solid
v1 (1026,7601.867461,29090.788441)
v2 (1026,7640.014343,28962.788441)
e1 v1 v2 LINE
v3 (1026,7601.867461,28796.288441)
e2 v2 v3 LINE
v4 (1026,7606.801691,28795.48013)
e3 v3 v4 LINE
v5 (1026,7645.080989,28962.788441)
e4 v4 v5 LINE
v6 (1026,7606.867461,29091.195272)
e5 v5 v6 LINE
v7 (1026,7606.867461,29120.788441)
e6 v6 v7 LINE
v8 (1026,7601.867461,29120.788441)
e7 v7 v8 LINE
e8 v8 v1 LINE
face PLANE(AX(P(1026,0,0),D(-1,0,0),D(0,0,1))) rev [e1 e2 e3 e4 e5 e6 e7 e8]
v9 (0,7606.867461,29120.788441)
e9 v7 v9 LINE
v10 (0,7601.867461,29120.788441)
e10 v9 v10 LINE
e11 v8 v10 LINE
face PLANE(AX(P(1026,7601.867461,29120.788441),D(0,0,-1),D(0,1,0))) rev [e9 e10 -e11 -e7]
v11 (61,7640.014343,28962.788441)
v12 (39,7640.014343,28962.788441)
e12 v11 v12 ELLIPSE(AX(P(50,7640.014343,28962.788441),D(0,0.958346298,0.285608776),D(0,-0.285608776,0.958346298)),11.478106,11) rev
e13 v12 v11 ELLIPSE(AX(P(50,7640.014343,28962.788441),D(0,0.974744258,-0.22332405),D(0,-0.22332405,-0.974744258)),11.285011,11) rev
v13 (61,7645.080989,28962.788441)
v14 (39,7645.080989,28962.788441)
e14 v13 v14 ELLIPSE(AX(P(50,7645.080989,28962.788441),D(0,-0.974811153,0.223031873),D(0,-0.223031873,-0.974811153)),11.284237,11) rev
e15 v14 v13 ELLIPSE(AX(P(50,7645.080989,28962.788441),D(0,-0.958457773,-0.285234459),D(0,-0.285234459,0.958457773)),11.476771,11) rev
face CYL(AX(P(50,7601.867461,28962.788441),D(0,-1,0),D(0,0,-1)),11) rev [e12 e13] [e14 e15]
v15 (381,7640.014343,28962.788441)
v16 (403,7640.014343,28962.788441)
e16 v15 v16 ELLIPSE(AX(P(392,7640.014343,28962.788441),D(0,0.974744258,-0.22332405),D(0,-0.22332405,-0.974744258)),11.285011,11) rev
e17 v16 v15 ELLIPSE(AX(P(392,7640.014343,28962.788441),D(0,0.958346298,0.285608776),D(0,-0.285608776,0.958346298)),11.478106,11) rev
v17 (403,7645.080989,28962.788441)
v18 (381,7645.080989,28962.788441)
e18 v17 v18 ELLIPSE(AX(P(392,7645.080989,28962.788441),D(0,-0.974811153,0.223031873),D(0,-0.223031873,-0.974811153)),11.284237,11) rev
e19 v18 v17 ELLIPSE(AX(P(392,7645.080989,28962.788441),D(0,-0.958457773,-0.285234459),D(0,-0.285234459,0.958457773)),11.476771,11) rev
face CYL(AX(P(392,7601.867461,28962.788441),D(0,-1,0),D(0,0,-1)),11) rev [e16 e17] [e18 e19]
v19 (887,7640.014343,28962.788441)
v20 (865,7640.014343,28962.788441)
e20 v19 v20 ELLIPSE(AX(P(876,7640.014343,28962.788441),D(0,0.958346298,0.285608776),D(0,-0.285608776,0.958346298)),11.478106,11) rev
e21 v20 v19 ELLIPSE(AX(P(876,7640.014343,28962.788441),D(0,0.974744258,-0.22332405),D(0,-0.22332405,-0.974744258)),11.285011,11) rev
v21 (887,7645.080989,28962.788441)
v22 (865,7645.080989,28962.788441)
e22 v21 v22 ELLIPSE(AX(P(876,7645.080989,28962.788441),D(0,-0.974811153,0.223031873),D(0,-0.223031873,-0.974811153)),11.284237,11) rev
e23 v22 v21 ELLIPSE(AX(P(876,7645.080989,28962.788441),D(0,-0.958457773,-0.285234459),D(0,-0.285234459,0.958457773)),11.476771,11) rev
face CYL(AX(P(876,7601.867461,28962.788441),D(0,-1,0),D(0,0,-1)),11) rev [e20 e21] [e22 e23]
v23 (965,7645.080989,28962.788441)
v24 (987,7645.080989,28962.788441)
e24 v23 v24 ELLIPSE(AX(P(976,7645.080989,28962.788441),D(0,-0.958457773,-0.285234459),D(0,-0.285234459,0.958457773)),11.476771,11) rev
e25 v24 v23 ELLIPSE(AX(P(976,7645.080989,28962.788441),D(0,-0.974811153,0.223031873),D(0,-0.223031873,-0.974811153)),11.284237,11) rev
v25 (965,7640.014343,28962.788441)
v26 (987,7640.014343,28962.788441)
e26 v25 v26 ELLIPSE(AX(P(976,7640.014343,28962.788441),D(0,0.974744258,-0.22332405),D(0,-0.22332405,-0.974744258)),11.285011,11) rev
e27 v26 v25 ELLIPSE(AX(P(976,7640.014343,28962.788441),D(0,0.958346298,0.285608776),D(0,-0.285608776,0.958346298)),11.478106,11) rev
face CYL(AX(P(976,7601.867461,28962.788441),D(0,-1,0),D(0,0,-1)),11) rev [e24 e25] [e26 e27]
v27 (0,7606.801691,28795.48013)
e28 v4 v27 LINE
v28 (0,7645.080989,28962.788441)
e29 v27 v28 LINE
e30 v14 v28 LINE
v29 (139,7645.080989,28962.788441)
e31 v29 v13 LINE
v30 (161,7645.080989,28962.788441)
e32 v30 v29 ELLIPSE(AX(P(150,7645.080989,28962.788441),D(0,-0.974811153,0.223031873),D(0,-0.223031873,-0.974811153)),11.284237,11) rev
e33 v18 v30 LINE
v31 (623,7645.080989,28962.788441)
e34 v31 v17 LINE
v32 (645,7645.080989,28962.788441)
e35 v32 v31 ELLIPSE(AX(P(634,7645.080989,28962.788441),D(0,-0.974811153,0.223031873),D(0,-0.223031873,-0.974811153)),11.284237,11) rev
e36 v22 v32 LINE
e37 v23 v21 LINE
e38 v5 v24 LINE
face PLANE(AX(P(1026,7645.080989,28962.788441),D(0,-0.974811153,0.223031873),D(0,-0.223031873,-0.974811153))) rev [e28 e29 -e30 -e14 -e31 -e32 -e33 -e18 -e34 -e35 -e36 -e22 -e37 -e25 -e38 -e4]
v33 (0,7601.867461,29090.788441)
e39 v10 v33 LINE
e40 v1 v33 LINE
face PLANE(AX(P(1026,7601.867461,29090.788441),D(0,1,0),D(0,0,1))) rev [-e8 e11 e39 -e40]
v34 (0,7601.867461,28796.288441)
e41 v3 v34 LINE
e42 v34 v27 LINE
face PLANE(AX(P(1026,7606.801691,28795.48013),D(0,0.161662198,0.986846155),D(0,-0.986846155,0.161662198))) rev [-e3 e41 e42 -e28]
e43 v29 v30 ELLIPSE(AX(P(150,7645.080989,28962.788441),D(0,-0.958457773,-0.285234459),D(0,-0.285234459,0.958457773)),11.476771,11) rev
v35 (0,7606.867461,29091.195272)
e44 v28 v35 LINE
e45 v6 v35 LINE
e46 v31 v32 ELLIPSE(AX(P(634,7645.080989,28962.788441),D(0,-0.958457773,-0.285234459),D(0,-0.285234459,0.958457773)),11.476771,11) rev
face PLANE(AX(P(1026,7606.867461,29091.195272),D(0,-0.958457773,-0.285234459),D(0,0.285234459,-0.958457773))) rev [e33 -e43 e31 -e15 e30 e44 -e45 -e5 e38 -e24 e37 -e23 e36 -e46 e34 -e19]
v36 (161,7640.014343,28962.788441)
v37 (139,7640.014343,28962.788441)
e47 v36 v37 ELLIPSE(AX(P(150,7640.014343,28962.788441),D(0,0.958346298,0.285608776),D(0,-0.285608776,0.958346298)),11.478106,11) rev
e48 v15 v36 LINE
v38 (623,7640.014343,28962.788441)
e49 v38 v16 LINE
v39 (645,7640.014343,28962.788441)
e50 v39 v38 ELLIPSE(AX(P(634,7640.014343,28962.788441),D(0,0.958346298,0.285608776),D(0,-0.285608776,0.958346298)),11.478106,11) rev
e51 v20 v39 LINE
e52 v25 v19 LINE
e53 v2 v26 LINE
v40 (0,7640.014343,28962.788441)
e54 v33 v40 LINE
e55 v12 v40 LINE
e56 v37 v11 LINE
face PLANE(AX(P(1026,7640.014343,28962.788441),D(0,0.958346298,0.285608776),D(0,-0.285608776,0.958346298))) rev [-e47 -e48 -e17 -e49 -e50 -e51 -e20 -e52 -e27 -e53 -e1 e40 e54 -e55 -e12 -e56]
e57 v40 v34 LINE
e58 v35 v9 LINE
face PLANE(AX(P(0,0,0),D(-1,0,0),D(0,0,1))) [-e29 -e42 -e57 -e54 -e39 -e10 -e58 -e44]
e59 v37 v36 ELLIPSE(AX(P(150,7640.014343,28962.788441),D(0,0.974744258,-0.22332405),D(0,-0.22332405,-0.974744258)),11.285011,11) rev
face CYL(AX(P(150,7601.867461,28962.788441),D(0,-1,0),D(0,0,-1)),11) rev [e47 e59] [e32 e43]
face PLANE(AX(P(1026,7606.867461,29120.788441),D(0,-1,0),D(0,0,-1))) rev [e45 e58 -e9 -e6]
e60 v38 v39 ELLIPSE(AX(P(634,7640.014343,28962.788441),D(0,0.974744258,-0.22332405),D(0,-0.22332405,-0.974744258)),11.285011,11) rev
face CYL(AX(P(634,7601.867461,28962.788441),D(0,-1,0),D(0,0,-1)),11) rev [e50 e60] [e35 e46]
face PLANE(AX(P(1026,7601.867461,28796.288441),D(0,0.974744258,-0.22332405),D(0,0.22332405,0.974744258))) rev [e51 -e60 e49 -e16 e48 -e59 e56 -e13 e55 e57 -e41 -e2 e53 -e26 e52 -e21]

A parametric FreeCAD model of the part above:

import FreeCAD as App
import Part
import Sketcher

V = App.Vector
Q = App.Units.Quantity


def add_polygon(sketch, points):
    """Adds a closed chain of lines whose ends are joined by coincident constraints."""
    first, n = sketch.GeometryCount, len(points)
    for a, b in zip(points, points[1:] + points[:1]):
        sketch.addGeometry(Part.LineSegment(App.Vector(*a, 0), App.Vector(*b, 0)), False)
    for i in range(n):
        sketch.addConstraint(Sketcher.Constraint("Coincident", first + i, 2, first + (i + 1) % n, 1))

doc = App.newDocument("Part")
body = doc.addObject("PartDesign::Body", "Body")

# Sketch on YZ plane
sketch1 = body.newObject("Sketcher::SketchObject", "Sketch")
sketch1.AttachmentSupport = (doc.getObject("YZ_Plane"), [""])
sketch1.MapMode = "FlatFace"
add_polygon(sketch1, [(7607, 29091), (7607, 29121), (7602, 29121), (7602, 29091), (7640, 28963), (7602, 28796), (7607, 28795), (7645, 28963)])  # lines 0-7
sketch1.addConstraint(Sketcher.Constraint("Vertical", 0))
sketch1.addConstraint(Sketcher.Constraint("Horizontal", 1))
sketch1.addConstraint(Sketcher.Constraint("Vertical", 2))
sketch1.addConstraint(Sketcher.Constraint("Horizontal", 3, 2, 6, 2))
sketch1.addConstraint(Sketcher.Constraint("Vertical", 2, 2, 4, 2))
sketch1.addConstraint(Sketcher.Constraint("DistanceX", 1, 2, 1, 1, Q("5 mm")))
sketch1.addConstraint(Sketcher.Constraint("DistanceY", 2, 2, 2, 1, Q("30 mm")))
sketch1.addConstraint(Sketcher.Constraint("Distance", 5, Q("5 mm")))
sketch1.addConstraint(Sketcher.Constraint("DistanceY", 3, 2, 2, 2, Q("128 mm")))
sketch1.addConstraint(Sketcher.Constraint("DistanceY", 4, 2, 3, 2, Q("166.5 mm")))
sketch1.addConstraint(Sketcher.Constraint("DistanceY", 0, 1, 0, 2, Q("29.593169 mm")))
sketch1.addConstraint(Sketcher.Constraint("Distance", 3, Q("133.56341 mm")))
sketch1.addConstraint(Sketcher.Constraint("Distance", 6, Q("171.631511 mm")))
sketch1.addConstraint(Sketcher.Constraint("Distance", 7, Q("133.972341 mm")))
sketch1.addConstraint(Sketcher.Constraint("DistanceX", -1, 1, 0, 2, Q("7606.867461 mm")))
sketch1.addConstraint(Sketcher.Constraint("DistanceY", -1, 1, 0, 2, Q("29120.788441 mm")))
pad1 = body.newObject("PartDesign::Pad", "Pad")
pad1.Profile = sketch1
pad1.Length = 1026

# Sketch on XZ plane
sketch2 = body.newObject("Sketcher::SketchObject", "Sketch001")
sketch2.AttachmentSupport = (doc.getObject("XZ_Plane"), [""])
sketch2.MapMode = "FlatFace"
sketch2.addGeometry(Part.Circle(V(50, 28963, 0), V(0, 0, 1), 11), False)
sketch2.addGeometry(Part.Circle(V(150, 28963, 0), V(0, 0, 1), 11), False)
sketch2.addGeometry(Part.Circle(V(392, 28963, 0), V(0, 0, 1), 11), False)
sketch2.addGeometry(Part.Circle(V(634, 28963, 0), V(0, 0, 1), 11), False)
sketch2.addGeometry(Part.Circle(V(876, 28963, 0), V(0, 0, 1), 11), False)
sketch2.addGeometry(Part.Circle(V(976, 28963, 0), V(0, 0, 1), 11), False)
sketch2.addConstraint(Sketcher.Constraint("Equal", 0, 1))
sketch2.addConstraint(Sketcher.Constraint("Equal", 1, 2))
sketch2.addConstraint(Sketcher.Constraint("Equal", 2, 3))
sketch2.addConstraint(Sketcher.Constraint("Equal", 3, 4))
sketch2.addConstraint(Sketcher.Constraint("Equal", 4, 5))
sketch2.addConstraint(Sketcher.Constraint("Horizontal", 0, 3, 1, 3))
sketch2.addConstraint(Sketcher.Constraint("Horizontal", 1, 3, 2, 3))
sketch2.addConstraint(Sketcher.Constraint("Horizontal", 2, 3, 3, 3))
sketch2.addConstraint(Sketcher.Constraint("Horizontal", 3, 3, 4, 3))
sketch2.addConstraint(Sketcher.Constraint("Horizontal", 4, 3, 5, 3))
sketch2.addConstraint(Sketcher.Constraint("Diameter", 0, Q("22 mm")))
sketch2.addConstraint(Sketcher.Constraint("DistanceX", -1, 1, 0, 3, Q("50 mm")))
sketch2.addConstraint(Sketcher.Constraint("DistanceX", -1, 1, 1, 3, Q("150 mm")))
sketch2.addConstraint(Sketcher.Constraint("DistanceX", -1, 1, 2, 3, Q("392 mm")))
sketch2.addConstraint(Sketcher.Constraint("DistanceX", -1, 1, 3, 3, Q("634 mm")))
sketch2.addConstraint(Sketcher.Constraint("DistanceX", -1, 1, 4, 3, Q("876 mm")))
sketch2.addConstraint(Sketcher.Constraint("DistanceX", -1, 1, 5, 3, Q("976 mm")))
sketch2.addConstraint(Sketcher.Constraint("DistanceY", -1, 1, 0, 3, Q("28962.788441 mm")))
pocket1 = body.newObject("PartDesign::Pocket", "Pocket")
pocket1.Profile = sketch2
pocket1.Type = "ThroughAll"
pocket1.Midplane = True

doc.recompute()
